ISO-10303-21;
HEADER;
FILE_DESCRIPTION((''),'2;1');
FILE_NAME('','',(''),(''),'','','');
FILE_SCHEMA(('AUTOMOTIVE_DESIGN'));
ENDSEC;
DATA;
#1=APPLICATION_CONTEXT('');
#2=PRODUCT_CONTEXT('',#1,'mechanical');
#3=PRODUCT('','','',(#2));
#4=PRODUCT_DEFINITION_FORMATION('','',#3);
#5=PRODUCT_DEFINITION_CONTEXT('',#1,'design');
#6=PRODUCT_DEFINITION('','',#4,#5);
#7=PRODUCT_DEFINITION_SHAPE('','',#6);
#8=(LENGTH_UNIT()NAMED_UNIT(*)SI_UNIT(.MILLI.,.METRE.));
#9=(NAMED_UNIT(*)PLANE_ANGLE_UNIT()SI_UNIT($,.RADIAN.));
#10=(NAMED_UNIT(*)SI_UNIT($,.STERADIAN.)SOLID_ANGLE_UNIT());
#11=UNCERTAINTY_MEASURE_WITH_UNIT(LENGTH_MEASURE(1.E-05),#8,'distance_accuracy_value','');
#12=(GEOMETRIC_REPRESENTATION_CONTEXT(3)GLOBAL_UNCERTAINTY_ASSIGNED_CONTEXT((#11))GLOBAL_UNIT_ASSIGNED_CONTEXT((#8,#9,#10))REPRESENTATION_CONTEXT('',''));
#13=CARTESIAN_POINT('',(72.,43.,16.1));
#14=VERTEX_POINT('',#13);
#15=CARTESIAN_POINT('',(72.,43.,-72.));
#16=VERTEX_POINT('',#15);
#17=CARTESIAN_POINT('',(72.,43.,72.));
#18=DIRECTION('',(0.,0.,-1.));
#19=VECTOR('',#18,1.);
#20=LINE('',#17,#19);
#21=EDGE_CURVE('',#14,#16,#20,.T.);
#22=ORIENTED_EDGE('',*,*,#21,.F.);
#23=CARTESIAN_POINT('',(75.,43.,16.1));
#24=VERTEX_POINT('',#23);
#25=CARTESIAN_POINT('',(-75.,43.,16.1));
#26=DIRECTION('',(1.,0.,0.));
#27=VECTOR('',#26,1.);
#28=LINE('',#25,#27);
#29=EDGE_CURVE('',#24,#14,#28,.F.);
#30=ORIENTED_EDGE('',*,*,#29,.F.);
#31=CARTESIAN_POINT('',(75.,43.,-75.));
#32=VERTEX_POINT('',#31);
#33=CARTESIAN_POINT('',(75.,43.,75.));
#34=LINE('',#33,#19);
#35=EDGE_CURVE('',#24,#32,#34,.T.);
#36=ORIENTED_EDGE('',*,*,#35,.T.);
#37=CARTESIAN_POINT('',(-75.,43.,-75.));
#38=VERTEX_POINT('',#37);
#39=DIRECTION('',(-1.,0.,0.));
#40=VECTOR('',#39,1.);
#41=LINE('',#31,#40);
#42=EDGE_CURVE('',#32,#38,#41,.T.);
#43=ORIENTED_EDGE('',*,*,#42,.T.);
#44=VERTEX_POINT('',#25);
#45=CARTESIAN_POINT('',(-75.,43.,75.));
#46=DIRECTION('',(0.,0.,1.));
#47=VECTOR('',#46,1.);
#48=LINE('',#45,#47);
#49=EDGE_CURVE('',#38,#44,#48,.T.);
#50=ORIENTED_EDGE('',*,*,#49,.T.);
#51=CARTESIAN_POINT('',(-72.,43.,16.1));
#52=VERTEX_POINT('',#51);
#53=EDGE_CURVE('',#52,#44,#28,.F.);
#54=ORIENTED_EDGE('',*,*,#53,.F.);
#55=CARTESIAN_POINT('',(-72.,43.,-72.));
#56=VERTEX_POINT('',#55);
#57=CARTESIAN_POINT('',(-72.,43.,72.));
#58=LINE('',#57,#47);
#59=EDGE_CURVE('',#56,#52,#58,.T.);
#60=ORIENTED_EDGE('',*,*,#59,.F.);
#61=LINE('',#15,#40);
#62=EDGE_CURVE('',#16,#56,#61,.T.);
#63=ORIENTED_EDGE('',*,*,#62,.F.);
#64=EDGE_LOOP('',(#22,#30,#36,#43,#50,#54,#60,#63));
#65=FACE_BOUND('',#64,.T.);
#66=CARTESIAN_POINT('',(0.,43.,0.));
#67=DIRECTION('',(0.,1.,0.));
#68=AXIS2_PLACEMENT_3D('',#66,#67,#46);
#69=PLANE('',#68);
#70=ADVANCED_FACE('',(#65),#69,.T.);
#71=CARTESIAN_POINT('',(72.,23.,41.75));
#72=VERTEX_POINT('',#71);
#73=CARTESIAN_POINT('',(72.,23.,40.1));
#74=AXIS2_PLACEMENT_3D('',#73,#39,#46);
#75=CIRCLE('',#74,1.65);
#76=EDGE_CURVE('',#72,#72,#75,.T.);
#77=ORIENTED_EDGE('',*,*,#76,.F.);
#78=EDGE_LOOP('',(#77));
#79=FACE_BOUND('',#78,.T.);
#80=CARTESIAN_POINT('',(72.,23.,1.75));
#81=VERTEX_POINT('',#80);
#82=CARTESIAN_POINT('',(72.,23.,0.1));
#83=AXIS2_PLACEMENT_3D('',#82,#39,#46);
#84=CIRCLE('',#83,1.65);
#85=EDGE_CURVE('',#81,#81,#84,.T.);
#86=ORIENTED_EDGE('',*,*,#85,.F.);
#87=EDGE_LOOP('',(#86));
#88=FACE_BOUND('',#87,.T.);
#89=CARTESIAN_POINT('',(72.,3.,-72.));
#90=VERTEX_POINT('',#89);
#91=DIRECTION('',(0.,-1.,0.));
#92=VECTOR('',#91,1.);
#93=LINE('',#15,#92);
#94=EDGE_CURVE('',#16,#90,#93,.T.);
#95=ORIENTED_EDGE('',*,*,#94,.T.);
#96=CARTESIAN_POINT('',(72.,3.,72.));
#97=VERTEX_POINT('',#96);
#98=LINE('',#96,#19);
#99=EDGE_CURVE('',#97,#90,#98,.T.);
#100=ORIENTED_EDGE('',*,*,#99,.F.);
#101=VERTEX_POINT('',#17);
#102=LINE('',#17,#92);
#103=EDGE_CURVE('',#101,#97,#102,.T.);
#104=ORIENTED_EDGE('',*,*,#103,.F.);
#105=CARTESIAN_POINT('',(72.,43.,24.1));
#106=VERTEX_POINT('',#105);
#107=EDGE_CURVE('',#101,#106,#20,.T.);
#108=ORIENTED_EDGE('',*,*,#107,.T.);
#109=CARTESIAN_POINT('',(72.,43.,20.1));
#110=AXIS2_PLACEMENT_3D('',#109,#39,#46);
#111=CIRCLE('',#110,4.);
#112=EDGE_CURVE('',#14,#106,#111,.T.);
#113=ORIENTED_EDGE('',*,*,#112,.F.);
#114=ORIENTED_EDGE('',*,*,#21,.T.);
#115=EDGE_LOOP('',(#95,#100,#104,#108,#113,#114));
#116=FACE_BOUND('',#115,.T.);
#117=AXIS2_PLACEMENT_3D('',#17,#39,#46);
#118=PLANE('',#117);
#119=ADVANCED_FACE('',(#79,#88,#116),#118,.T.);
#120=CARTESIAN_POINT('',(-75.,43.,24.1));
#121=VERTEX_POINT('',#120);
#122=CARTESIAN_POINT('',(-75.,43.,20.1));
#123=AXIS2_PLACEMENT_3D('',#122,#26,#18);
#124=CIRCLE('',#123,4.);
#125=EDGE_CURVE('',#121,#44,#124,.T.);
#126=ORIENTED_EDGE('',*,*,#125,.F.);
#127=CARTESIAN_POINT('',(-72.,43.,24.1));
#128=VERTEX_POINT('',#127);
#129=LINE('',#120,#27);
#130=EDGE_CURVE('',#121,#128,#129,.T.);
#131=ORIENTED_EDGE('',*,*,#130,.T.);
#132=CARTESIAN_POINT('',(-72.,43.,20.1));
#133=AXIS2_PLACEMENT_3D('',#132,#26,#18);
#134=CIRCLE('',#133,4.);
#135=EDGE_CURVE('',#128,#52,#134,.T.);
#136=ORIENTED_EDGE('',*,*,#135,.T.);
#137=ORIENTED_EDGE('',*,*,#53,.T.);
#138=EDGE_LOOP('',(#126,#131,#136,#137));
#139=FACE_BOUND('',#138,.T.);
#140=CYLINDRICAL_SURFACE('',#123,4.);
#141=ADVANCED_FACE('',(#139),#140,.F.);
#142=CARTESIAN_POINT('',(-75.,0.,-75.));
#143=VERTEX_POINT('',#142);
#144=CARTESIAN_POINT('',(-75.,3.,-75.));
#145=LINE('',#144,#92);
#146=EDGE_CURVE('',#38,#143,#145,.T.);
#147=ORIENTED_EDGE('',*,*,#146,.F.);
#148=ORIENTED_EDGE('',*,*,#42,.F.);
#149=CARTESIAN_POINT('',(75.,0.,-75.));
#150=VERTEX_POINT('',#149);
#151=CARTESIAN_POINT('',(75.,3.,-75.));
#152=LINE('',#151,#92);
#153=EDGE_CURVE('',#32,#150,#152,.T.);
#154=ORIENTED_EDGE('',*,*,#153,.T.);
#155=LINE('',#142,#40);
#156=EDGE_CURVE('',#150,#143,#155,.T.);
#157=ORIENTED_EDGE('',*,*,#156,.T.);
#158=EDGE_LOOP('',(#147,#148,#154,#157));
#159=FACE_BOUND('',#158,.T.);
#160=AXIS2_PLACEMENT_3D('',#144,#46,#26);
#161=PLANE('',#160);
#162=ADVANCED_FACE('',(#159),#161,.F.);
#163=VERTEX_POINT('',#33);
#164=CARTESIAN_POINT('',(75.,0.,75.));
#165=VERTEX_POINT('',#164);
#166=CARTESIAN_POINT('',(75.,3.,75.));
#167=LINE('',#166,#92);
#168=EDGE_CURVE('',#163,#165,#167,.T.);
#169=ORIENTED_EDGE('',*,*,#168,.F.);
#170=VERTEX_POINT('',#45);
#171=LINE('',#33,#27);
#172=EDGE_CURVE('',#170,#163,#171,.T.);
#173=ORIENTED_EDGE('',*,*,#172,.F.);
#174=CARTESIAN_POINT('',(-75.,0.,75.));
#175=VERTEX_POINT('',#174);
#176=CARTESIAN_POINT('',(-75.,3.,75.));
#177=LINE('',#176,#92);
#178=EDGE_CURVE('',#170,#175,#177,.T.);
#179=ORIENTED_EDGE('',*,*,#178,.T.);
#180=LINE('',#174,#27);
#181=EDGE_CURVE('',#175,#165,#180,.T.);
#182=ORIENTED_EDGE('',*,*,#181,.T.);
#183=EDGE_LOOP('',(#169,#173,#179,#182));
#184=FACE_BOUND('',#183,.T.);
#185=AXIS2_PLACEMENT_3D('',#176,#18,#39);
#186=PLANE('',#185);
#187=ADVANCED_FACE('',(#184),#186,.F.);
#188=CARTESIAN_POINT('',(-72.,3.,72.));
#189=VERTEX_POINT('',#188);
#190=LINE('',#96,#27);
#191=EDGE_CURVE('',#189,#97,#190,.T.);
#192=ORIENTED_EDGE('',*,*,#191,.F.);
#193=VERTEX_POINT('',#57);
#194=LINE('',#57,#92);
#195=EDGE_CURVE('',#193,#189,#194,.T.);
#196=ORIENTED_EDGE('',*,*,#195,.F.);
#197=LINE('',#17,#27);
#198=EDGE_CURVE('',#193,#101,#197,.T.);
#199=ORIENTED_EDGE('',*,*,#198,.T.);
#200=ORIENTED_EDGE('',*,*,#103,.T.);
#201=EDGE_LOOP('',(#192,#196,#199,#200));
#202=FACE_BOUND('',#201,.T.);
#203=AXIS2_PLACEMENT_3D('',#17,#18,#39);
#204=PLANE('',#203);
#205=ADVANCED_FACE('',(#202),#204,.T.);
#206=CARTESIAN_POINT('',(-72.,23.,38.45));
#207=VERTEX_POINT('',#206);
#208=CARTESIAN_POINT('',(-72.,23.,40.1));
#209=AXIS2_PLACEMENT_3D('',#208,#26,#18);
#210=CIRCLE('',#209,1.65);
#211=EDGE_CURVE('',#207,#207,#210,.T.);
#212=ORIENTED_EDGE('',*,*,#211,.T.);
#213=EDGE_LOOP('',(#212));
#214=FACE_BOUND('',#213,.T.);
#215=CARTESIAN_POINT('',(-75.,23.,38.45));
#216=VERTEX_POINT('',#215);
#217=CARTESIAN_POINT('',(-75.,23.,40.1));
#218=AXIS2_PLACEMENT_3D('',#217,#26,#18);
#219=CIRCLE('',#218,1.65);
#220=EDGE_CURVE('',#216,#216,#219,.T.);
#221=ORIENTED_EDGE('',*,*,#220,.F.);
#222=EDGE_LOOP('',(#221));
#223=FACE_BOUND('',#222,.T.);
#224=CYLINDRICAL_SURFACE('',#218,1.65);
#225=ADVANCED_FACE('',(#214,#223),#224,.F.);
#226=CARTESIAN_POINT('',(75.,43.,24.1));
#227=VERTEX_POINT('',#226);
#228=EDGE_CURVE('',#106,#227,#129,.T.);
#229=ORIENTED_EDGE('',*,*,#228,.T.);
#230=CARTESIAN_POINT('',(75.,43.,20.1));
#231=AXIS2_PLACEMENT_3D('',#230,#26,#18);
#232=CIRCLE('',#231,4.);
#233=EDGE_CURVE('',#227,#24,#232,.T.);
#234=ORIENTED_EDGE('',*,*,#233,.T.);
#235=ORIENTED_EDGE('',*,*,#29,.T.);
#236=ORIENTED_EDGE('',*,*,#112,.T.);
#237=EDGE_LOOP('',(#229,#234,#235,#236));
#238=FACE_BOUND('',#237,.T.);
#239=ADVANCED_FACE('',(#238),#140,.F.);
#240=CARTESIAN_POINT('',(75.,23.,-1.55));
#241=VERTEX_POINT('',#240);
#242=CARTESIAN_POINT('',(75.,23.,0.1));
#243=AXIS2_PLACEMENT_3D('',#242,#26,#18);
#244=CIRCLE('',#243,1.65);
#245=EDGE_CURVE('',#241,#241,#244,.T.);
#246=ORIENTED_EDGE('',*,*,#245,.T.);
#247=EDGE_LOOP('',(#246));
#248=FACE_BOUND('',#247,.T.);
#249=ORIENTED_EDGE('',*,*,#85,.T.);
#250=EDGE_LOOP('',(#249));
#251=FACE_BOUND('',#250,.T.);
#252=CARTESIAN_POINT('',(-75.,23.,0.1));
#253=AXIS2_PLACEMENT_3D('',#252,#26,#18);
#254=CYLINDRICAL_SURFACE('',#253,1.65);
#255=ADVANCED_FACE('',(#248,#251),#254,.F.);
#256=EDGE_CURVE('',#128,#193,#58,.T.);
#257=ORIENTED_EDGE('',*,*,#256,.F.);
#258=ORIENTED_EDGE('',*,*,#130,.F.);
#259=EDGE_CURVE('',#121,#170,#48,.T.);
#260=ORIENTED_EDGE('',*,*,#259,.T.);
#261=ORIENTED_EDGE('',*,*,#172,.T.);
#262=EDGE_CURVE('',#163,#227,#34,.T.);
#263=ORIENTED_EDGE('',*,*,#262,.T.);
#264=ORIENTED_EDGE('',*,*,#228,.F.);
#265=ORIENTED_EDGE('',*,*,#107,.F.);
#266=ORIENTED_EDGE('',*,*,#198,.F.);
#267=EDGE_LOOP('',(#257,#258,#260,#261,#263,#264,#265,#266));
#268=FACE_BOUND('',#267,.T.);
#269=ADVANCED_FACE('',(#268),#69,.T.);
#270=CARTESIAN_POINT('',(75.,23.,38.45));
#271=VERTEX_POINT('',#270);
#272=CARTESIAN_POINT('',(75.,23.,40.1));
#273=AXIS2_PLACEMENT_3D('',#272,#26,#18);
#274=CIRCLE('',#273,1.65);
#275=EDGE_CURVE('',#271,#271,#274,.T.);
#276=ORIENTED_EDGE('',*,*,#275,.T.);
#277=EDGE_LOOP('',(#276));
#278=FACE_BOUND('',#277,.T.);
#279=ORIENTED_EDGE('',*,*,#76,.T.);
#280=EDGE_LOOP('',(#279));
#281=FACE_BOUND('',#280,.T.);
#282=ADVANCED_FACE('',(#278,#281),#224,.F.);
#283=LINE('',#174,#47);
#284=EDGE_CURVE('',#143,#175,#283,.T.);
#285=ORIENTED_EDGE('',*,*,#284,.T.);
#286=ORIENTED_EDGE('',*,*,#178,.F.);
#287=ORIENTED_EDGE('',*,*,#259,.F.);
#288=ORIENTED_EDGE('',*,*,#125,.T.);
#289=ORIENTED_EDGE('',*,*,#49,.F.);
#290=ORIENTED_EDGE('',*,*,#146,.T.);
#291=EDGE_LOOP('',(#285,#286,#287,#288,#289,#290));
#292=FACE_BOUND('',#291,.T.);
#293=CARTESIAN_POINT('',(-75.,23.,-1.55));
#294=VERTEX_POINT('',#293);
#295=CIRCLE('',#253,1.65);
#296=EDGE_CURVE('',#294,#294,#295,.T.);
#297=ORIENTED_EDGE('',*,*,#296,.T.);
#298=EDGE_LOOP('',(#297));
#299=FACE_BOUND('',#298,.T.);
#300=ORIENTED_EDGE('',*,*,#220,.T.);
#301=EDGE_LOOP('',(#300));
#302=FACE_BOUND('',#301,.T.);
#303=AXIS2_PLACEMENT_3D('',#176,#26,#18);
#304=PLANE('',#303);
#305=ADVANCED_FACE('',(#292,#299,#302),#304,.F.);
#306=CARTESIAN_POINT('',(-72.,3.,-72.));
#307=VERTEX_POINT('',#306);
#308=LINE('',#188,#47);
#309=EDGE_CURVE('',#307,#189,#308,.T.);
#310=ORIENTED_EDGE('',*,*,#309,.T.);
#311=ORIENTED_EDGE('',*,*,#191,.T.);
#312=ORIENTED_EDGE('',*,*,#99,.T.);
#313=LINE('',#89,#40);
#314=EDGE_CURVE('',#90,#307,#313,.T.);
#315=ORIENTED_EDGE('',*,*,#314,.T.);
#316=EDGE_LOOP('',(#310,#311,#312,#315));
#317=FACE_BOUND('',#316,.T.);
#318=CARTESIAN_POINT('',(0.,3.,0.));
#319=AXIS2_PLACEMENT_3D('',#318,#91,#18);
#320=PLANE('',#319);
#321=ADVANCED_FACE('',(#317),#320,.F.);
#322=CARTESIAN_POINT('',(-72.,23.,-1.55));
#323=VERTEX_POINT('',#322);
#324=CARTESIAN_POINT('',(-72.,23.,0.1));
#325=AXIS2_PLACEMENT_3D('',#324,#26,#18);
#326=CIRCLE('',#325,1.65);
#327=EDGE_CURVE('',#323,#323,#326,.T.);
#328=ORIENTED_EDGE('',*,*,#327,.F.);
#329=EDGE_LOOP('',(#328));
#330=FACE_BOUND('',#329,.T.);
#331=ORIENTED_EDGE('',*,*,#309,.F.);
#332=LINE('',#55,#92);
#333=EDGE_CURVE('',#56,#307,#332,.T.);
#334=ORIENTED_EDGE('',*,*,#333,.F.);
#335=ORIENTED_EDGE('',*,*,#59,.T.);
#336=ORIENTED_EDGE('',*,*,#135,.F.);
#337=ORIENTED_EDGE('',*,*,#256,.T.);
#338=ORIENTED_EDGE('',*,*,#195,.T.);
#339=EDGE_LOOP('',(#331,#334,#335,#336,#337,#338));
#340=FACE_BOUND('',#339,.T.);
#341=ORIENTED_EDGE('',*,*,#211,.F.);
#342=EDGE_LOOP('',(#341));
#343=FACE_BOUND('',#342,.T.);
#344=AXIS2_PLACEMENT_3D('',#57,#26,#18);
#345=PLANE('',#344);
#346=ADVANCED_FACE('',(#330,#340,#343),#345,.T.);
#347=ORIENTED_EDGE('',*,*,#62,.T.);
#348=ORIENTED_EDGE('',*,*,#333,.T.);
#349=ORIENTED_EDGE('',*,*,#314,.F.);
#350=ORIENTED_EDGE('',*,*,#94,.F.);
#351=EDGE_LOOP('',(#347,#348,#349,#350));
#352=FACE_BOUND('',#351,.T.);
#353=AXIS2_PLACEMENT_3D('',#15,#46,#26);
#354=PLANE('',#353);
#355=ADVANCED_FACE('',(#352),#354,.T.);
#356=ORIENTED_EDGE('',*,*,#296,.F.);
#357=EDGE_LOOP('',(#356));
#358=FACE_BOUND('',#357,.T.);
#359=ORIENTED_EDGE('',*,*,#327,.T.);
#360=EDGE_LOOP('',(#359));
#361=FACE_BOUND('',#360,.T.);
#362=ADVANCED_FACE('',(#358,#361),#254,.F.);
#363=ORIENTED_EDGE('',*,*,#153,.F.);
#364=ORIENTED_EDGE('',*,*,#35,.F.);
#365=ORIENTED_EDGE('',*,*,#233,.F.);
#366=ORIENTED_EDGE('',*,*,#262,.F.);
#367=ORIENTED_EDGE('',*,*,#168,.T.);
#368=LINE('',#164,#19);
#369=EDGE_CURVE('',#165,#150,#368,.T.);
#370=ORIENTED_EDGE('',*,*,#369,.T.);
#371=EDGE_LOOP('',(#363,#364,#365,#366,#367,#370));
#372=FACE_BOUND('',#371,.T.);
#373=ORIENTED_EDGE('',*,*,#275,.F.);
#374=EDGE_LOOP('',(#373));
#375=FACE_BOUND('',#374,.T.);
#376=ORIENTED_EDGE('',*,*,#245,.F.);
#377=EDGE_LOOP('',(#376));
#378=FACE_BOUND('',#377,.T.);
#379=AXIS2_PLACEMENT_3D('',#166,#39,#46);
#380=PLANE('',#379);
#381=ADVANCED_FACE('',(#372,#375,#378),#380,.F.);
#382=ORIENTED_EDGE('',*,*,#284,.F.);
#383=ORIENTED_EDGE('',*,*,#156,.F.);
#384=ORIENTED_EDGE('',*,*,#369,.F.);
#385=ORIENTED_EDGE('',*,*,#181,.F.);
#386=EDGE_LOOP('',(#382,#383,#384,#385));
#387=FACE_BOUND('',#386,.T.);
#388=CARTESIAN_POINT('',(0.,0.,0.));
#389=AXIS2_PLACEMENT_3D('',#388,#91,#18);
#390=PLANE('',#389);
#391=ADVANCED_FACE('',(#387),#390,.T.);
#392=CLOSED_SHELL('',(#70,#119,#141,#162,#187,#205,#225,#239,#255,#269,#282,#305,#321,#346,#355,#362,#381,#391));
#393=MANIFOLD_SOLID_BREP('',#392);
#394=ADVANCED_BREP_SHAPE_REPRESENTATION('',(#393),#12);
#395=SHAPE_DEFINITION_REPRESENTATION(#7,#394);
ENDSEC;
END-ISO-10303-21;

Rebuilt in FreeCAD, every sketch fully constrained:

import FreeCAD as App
import Part
import Sketcher
from FreeCAD import Vector
Q = App.Units.Quantity

doc = App.newDocument("Part")
body = doc.addObject("PartDesign::Body", "Body")

# Sketch on XZ plane
sketch1 = body.newObject("Sketcher::SketchObject", "Sketch")
sketch1.AttachmentSupport = (doc.getObject("XZ_Plane"), [""])
sketch1.MapMode = "FlatFace"
sketch1.addGeometry([
    Part.LineSegment(Vector(-75, -75, 0), Vector(-75, 75, 0)),
    Part.LineSegment(Vector(-75, 75, 0), Vector(75, 75, 0)),
    Part.LineSegment(Vector(75, 75, 0), Vector(75, -75, 0)),
    Part.LineSegment(Vector(75, -75, 0), Vector(-75, -75, 0)),
], False)
sketch1.addConstraint([
    Sketcher.Constraint("Coincident", 0, 2, 1, 1),
    Sketcher.Constraint("Coincident", 1, 2, 2, 1),
    Sketcher.Constraint("Coincident", 2, 2, 3, 1),
    Sketcher.Constraint("Coincident", 3, 2, 0, 1),
    Sketcher.Constraint("Vertical", 0),
    Sketcher.Constraint("Horizontal", 1),
    Sketcher.Constraint("Vertical", 2),
    Sketcher.Constraint("Horizontal", 3),
    Sketcher.Constraint("Symmetric", 0, 2, 2, 2, -1, 1),
    Sketcher.Constraint("Equal", 3, 0),
    Sketcher.Constraint("DistanceX", 1, 1, 1, 2, Q("150 mm")),
])
pad1 = body.newObject("PartDesign::Pad", "Pad")
pad1.Profile = sketch1
pad1.Length = 3
pad1.Reversed = True

# Sketch on XZ plane
sketch2 = body.newObject("Sketcher::SketchObject", "Sketch001")
sketch2.AttachmentSupport = (doc.getObject("XZ_Plane"), [""])
sketch2.MapMode = "FlatFace"
sketch2.AttachmentOffset = App.Placement(Vector(0, 0, -3), App.Rotation())
sketch2.addGeometry([
    Part.LineSegment(Vector(-75, -75, 0), Vector(-75, 75, 0)),  # 0
    Part.LineSegment(Vector(-75, 75, 0), Vector(75, 75, 0)),  # 1
    Part.LineSegment(Vector(75, 75, 0), Vector(75, -75, 0)),  # 2
    Part.LineSegment(Vector(75, -75, 0), Vector(-75, -75, 0)),  # 3
    Part.LineSegment(Vector(72, 72, 0), Vector(-72, 72, 0)),  # 4
    Part.LineSegment(Vector(-72, 72, 0), Vector(-72, -72, 0)),  # 5
    Part.LineSegment(Vector(-72, -72, 0), Vector(72, -72, 0)),  # 6
    Part.LineSegment(Vector(72, -72, 0), Vector(72, 72, 0)),  # 7
], False)
sketch2.addConstraint([
    Sketcher.Constraint("Coincident", 0, 2, 1, 1),
    Sketcher.Constraint("Coincident", 1, 2, 2, 1),
    Sketcher.Constraint("Coincident", 2, 2, 3, 1),
    Sketcher.Constraint("Coincident", 3, 2, 0, 1),
    Sketcher.Constraint("Coincident", 4, 2, 5, 1),
    Sketcher.Constraint("Coincident", 5, 2, 6, 1),
    Sketcher.Constraint("Coincident", 6, 2, 7, 1),
    Sketcher.Constraint("Coincident", 7, 2, 4, 1),
    Sketcher.Constraint("Vertical", 0),
    Sketcher.Constraint("Horizontal", 1),
    Sketcher.Constraint("Vertical", 2),
    Sketcher.Constraint("Horizontal", 3),
    Sketcher.Constraint("Horizontal", 4),
    Sketcher.Constraint("Vertical", 5),
    Sketcher.Constraint("Horizontal", 6),
    Sketcher.Constraint("Vertical", 7),
    Sketcher.Constraint("Symmetric", 0, 2, 2, 2, -1, 1),
    Sketcher.Constraint("Symmetric", 4, 2, 6, 2, -1, 1),
    Sketcher.Constraint("Equal", 3, 0),
    Sketcher.Constraint("Equal", 6, 5),
    Sketcher.Constraint("DistanceX", 1, 1, 1, 2, Q("150 mm")),
    Sketcher.Constraint("DistanceX", 4, 2, 4, 1, Q("144 mm")),
])
pad2 = body.newObject("PartDesign::Pad", "Pad001")
pad2.Profile = sketch2
pad2.Length = 40
pad2.Reversed = True

# Sketch on YZ plane
sketch3 = body.newObject("Sketcher::SketchObject", "Sketch002")
sketch3.AttachmentSupport = (doc.getObject("YZ_Plane"), [""])
sketch3.MapMode = "FlatFace"
sketch3.AttachmentOffset = App.Placement(Vector(0, 0, 75), App.Rotation())
sketch3.addGeometry([
    Part.Circle(Vector(43, 20.1, 0), Vector(0, 0, 1), 4),
    Part.Circle(Vector(23, 0.1, 0), Vector(0, 0, 1), 1.6),
    Part.Circle(Vector(23, 40.1, 0), Vector(0, 0, 1), 1.6),
], False)
sketch3.addConstraint([
    Sketcher.Constraint("Equal", 1, 2),
    Sketcher.Constraint("Vertical", 1, 3, 2, 3),
    Sketcher.Constraint("Diameter", 0, Q("8 mm")),
    Sketcher.Constraint("Diameter", 1, Q("3.3 mm")),
    Sketcher.Constraint("DistanceX", -1, 1, 0, 3, Q("43 mm")),
    Sketcher.Constraint("DistanceX", -1, 1, 1, 3, Q("23 mm")),
    Sketcher.Constraint("DistanceY", 1, 3, 0, 3, Q("20 mm")),
    Sketcher.Constraint("DistanceY", 0, 3, 2, 3, Q("20 mm")),
    Sketcher.Constraint("DistanceY", -1, 1, 0, 3, Q("20.1 mm")),
])
pocket1 = body.newObject("PartDesign::Pocket", "Pocket")
pocket1.Profile = sketch3
pocket1.Type = "ThroughAll"

doc.recompute()
